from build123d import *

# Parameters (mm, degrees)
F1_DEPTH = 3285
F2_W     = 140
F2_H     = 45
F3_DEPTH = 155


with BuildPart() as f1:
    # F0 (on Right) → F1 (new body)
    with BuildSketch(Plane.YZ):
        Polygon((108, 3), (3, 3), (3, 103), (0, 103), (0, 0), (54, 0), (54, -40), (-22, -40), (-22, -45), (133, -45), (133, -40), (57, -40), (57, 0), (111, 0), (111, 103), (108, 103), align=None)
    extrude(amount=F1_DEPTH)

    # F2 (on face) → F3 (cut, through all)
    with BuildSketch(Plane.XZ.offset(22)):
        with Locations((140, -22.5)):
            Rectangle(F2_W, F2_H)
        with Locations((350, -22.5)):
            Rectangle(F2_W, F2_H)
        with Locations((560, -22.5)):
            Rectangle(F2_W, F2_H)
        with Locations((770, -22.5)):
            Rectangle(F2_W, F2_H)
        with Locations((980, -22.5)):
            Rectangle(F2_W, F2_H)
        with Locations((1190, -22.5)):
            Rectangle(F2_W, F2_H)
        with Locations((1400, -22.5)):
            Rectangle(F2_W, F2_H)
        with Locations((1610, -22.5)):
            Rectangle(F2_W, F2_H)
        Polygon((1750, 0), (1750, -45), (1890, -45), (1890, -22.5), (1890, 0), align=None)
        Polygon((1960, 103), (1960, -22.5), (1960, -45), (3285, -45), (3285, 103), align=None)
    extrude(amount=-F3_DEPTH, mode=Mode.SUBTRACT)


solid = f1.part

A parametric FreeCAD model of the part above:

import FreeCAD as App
import Part
import Sketcher
from FreeCAD import Vector


def add_polygon(sketch, points):
    """Adds a closed chain of lines whose ends are joined by coincident constraints."""
    first, n = sketch.GeometryCount, len(points)
    for a, b in zip(points, points[1:] + points[:1]):
        sketch.addGeometry(Part.LineSegment(App.Vector(*a, 0), App.Vector(*b, 0)), False)
    for i in range(n):
        sketch.addConstraint(Sketcher.Constraint("Coincident", first + i, 2, first + (i + 1) % n, 1))

doc = App.newDocument("Part")
params = doc.addObject("Spreadsheet::Sheet", "Params")
for row, (alias, value) in enumerate([
    ("sketch1_width", "105 mm"),
    ("sketch1_width2", "3 mm"),
    ("sketch1_width3", "54 mm"),
    ("sketch1_width4", "76 mm"),
    ("sketch1_height", "100 mm"),
    ("pad1_length", "3285 mm"),
    ("sketch2_width", "140 mm"),
    ("sketch2_width2", "1325 mm"),
    ("sketch2_height", "45 mm"),
    ("sketch2_height2", "148 mm"),
], start=1):
    params.set(f"A{row}", alias)
    params.set(f"B{row}", "=" + value)
    params.setAlias(f"B{row}", alias)

body = doc.addObject("PartDesign::Body", "Body")

sketch1 = body.newObject("Sketcher::SketchObject", "Sketch")
sketch1.AttachmentSupport = (doc.getObject("YZ_Plane"), [""])
sketch1.MapMode = "FlatFace"
add_polygon(sketch1, [(108, 3), (3, 3), (3, 103), (0, 103), (0, 0), (54, 0), (54, -40), (-22, -40), (-22, -45), (133, -45), (133, -40), (57, -40), (57, 0), (111, 0), (111, 103), (108, 103)])
sketch1.addConstraint([
    Sketcher.Constraint("Horizontal", 0),
    Sketcher.Constraint("Vertical", 1),
    Sketcher.Constraint("Horizontal", 2),
    Sketcher.Constraint("Vertical", 3),
    Sketcher.Constraint("Horizontal", 4),
    Sketcher.Constraint("Vertical", 5),
    Sketcher.Constraint("Horizontal", 6),
    Sketcher.Constraint("Vertical", 7),
    Sketcher.Constraint("Horizontal", 8),
    Sketcher.Constraint("Vertical", 9),
    Sketcher.Constraint("Horizontal", 10),
    Sketcher.Constraint("Vertical", 11),
    Sketcher.Constraint("Horizontal", 12),
    Sketcher.Constraint("Vertical", 13),
    Sketcher.Constraint("Horizontal", 14),
    Sketcher.Constraint("Vertical", 15),
    Sketcher.Constraint("Coincident", 3, 2, -1, 1),
    Sketcher.Constraint("PointOnObject", 11, 2, -1),
    Sketcher.Constraint("Horizontal", 6, 2, 9, 2),
    Sketcher.Constraint("Horizontal", 2, 2, 13, 2),
    Sketcher.Constraint("Equal", 6, 10),
    Sketcher.Constraint("Equal", 4, 12),
    Sketcher.Constraint("Equal", 2, 14),
    Sketcher.Constraint("DistanceX", 0, 2, 0, 1, 105.0),
    Sketcher.Constraint("DistanceX", 2, 2, 2, 1, 3.0),
    Sketcher.Constraint("DistanceX", 4, 1, 4, 2, 54.0),
    Sketcher.Constraint("DistanceX", 6, 2, 6, 1, 76.0),
    Sketcher.Constraint("DistanceY", 1, 1, 1, 2, 100.0),
    Sketcher.Constraint("DistanceY", 3, 2, 3, 1, 103.0),
    Sketcher.Constraint("DistanceY", 5, 2, 5, 1, 40.0),
    Sketcher.Constraint("DistanceY", 7, 2, 7, 1, 5.0),
])
sketch1.setExpression("Constraints[39]", "Params.sketch1_width")
sketch1.setExpression("Constraints[40]", "Params.sketch1_width2")
sketch1.setExpression("Constraints[41]", "Params.sketch1_width3")
sketch1.setExpression("Constraints[42]", "Params.sketch1_width4")
sketch1.setExpression("Constraints[43]", "Params.sketch1_height")
pad1 = body.newObject("PartDesign::Pad", "Pad")
pad1.Profile = sketch1
pad1.setExpression("Length", "Params.pad1_length")

sketch2 = body.newObject("Sketcher::SketchObject", "Sketch001")
sketch2.AttachmentSupport = (doc.getObject("XZ_Plane"), [""])
sketch2.MapMode = "FlatFace"
sketch2.AttachmentOffset = App.Placement(Vector(0, 0, 22), App.Rotation())
add_polygon(sketch2, [(70, 0), (70, -45), (210, -45), (210, 0)])
add_polygon(sketch2, [(280, 0), (280, -45), (420, -45), (420, 0)])
add_polygon(sketch2, [(490, 0), (490, -45), (630, -45), (630, 0)])
add_polygon(sketch2, [(700, 0), (700, -45), (840, -45), (840, 0)])
add_polygon(sketch2, [(910, 0), (910, -45), (1050, -45), (1050, 0)])
add_polygon(sketch2, [(1120, 0), (1120, -45), (1260, -45), (1260, 0)])
add_polygon(sketch2, [(1330, 0), (1330, -45), (1470, -45), (1470, 0)])
add_polygon(sketch2, [(1540, 0), (1540, -45), (1680, -45), (1680, 0)])
add_polygon(sketch2, [(1750, 0), (1750, -45), (1890, -45), (1890, 0)])
add_polygon(sketch2, [(1960, 103), (1960, -45), (3285, -45), (3285, 103)])
sketch2.addConstraint([
    Sketcher.Constraint("Vertical", 0),
    Sketcher.Constraint("Horizontal", 1),
    Sketcher.Constraint("Vertical", 2),
    Sketcher.Constraint("Horizontal", 3),
    Sketcher.Constraint("Vertical", 4),
    Sketcher.Constraint("Horizontal", 5),
    Sketcher.Constraint("Vertical", 6),
    Sketcher.Constraint("Horizontal", 7),
    Sketcher.Constraint("Vertical", 8),
    Sketcher.Constraint("Horizontal", 9),
    Sketcher.Constraint("Vertical", 10),
    Sketcher.Constraint("Horizontal", 11),
    Sketcher.Constraint("Vertical", 12),
    Sketcher.Constraint("Horizontal", 13),
    Sketcher.Constraint("Vertical", 14),
    Sketcher.Constraint("Horizontal", 15),
    Sketcher.Constraint("Vertical", 16),
    Sketcher.Constraint("Horizontal", 17),
    Sketcher.Constraint("Vertical", 18),
    Sketcher.Constraint("Horizontal", 19),
    Sketcher.Constraint("Vertical", 20),
    Sketcher.Constraint("Horizontal", 21),
    Sketcher.Constraint("Vertical", 22),
    Sketcher.Constraint("Horizontal", 23),
    Sketcher.Constraint("Vertical", 24),
    Sketcher.Constraint("Horizontal", 25),
    Sketcher.Constraint("Vertical", 26),
    Sketcher.Constraint("Horizontal", 27),
    Sketcher.Constraint("Vertical", 28),
    Sketcher.Constraint("Horizontal", 29),
    Sketcher.Constraint("Vertical", 30),
    Sketcher.Constraint("Horizontal", 31),
    Sketcher.Constraint("Vertical", 32),
    Sketcher.Constraint("Horizontal", 33),
    Sketcher.Constraint("Vertical", 34),
    Sketcher.Constraint("Horizontal", 35),
    Sketcher.Constraint("Vertical", 36),
    Sketcher.Constraint("Horizontal", 37),
    Sketcher.Constraint("Vertical", 38),
    Sketcher.Constraint("Horizontal", 39),
    Sketcher.Constraint("PointOnObject", 2, 2, -1),
    Sketcher.Constraint("PointOnObject", 6, 2, -1),
    Sketcher.Constraint("PointOnObject", 10, 2, -1),
    Sketcher.Constraint("PointOnObject", 14, 2, -1),
    Sketcher.Constraint("PointOnObject", 18, 2, -1),
    Sketcher.Constraint("PointOnObject", 22, 2, -1),
    Sketcher.Constraint("PointOnObject", 26, 2, -1),
    Sketcher.Constraint("PointOnObject", 30, 2, -1),
    Sketcher.Constraint("PointOnObject", 34, 2, -1),
    Sketcher.Constraint("Horizontal", 1, 2, 4, 2),
    Sketcher.Constraint("Horizontal", 5, 2, 8, 2),
    Sketcher.Constraint("Horizontal", 9, 2, 12, 2),
    Sketcher.Constraint("Horizontal", 13, 2, 16, 2),
    Sketcher.Constraint("Horizontal", 17, 2, 20, 2),
    Sketcher.Constraint("Horizontal", 21, 2, 24, 2),
    Sketcher.Constraint("Horizontal", 25, 2, 28, 2),
    Sketcher.Constraint("Horizontal", 29, 2, 32, 2),
    Sketcher.Constraint("Horizontal", 33, 2, 36, 2),
    Sketcher.Constraint("Equal", 3, 5),
    Sketcher.Constraint("Equal", 7, 9),
    Sketcher.Constraint("Equal", 11, 13),
    Sketcher.Constraint("Equal", 15, 17),
    Sketcher.Constraint("Equal", 19, 21),
    Sketcher.Constraint("Equal", 23, 25),
    Sketcher.Constraint("Equal", 27, 29),
    Sketcher.Constraint("Equal", 31, 33),
    Sketcher.Constraint("DistanceX", 1, 1, 1, 2, 140.0),
    Sketcher.Constraint("DistanceX", 37, 1, 37, 2, 1325.0),
    Sketcher.Constraint("DistanceY", 0, 2, 0, 1, 45.0),
    Sketcher.Constraint("DistanceY", 36, 2, 36, 1, 148.0),
    Sketcher.Constraint("DistanceX", -1, 1, 0, 2, 70.0),
    Sketcher.Constraint("DistanceX", -1, 1, 4, 2, 280.0),
    Sketcher.Constraint("DistanceX", -1, 1, 8, 2, 490.0),
    Sketcher.Constraint("DistanceX", -1, 1, 12, 2, 700.0),
    Sketcher.Constraint("DistanceX", -1, 1, 16, 2, 910.0),
    Sketcher.Constraint("DistanceX", -1, 1, 20, 2, 1120.0),
    Sketcher.Constraint("DistanceX", -1, 1, 24, 2, 1330.0),
    Sketcher.Constraint("DistanceX", -1, 1, 28, 2, 1540.0),
    Sketcher.Constraint("DistanceX", -1, 1, 32, 2, 1750.0),
    Sketcher.Constraint("DistanceX", -1, 1, 36, 2, 1960.0),
])
sketch2.setExpression("Constraints[106]", "Params.sketch2_width")
sketch2.setExpression("Constraints[107]", "Params.sketch2_width2")
sketch2.setExpression("Constraints[108]", "Params.sketch2_height")
sketch2.setExpression("Constraints[109]", "Params.sketch2_height2")
pocket1 = body.newObject("PartDesign::Pocket", "Pocket")
pocket1.Profile = sketch2
pocket1.Type = "ThroughAll"

doc.recompute()
